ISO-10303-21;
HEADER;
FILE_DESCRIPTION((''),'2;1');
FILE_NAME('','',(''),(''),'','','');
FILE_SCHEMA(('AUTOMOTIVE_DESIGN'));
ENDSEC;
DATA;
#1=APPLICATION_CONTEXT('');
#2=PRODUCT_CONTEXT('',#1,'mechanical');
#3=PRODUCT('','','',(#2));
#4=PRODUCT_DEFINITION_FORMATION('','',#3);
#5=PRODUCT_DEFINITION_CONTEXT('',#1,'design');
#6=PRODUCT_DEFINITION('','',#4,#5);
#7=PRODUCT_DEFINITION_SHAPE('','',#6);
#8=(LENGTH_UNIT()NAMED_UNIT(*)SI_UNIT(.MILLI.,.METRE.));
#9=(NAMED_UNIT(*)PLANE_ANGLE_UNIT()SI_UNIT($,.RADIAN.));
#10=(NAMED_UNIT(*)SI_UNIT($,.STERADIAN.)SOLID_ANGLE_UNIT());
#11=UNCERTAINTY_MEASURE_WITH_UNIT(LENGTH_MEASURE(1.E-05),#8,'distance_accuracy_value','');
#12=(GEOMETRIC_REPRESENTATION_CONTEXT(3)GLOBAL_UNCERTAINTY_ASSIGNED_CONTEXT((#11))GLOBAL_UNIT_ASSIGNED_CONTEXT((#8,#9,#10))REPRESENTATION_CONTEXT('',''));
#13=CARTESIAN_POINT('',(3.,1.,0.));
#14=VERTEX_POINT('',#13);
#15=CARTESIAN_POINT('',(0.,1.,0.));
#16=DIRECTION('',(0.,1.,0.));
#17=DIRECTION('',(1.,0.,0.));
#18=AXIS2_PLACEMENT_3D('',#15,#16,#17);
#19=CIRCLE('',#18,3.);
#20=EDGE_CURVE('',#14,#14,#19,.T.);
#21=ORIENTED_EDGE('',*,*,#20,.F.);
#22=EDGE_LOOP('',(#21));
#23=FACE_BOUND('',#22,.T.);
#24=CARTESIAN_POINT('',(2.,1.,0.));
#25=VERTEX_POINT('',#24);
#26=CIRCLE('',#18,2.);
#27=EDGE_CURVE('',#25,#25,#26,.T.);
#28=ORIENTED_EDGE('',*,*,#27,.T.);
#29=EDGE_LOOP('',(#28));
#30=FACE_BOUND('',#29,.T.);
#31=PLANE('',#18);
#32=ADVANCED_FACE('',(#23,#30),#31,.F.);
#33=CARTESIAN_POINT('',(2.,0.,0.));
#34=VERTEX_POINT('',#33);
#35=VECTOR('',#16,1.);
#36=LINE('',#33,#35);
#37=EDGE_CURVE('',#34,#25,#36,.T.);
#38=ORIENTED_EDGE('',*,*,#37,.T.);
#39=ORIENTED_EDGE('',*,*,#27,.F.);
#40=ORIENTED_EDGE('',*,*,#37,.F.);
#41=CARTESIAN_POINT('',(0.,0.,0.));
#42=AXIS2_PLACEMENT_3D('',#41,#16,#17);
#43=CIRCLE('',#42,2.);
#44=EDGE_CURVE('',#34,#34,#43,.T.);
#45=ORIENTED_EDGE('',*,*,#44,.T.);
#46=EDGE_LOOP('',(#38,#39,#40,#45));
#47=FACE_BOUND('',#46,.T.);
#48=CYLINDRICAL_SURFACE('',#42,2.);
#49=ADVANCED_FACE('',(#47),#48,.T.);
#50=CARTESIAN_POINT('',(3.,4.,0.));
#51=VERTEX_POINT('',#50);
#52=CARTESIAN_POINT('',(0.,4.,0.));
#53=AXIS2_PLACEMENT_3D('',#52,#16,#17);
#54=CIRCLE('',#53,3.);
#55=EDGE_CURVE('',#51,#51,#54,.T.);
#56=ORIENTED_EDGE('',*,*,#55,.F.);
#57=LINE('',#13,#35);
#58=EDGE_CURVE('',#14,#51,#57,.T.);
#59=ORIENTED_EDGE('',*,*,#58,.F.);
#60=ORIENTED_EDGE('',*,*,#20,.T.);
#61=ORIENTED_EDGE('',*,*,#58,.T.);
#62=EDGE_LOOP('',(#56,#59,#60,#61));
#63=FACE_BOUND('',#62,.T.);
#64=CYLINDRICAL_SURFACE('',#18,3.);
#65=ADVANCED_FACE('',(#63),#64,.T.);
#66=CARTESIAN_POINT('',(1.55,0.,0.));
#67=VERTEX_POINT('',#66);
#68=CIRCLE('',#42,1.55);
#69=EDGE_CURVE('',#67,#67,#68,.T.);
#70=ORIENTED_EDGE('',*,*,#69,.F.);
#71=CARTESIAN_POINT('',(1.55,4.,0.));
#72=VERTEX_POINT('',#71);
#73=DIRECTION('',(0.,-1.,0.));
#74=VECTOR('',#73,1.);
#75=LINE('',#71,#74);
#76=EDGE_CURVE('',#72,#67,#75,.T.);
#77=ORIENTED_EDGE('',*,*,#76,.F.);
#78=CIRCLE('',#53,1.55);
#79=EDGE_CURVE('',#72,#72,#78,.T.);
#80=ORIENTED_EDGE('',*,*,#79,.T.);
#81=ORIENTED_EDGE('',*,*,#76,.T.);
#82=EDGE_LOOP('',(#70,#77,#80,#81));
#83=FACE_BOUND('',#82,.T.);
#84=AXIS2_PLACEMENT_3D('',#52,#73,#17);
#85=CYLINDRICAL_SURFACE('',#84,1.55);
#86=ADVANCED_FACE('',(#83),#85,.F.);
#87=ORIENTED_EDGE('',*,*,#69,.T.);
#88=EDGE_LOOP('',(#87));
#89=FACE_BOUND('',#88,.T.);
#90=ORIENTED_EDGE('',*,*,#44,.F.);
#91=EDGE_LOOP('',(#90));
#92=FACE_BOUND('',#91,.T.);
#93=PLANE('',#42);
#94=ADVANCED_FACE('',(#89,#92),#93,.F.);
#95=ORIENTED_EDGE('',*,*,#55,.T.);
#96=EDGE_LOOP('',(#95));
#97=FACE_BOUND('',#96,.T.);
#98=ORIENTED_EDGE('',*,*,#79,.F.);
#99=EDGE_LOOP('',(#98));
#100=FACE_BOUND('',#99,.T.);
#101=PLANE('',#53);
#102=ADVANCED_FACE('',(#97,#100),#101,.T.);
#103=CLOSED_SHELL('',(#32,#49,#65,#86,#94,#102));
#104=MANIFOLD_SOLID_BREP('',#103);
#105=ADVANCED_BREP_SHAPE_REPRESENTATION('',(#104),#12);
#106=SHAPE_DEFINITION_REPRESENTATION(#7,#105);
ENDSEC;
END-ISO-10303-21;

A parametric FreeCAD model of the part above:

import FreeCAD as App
import Part
import Sketcher
from FreeCAD import Vector

doc = App.newDocument("Part")
body = doc.addObject("PartDesign::Body", "Body")

# Sketch on XY plane
sketch1 = doc.addObject("Sketcher::SketchObject", "Sketch")
body.addObject(sketch1)
sketch1.AttachmentSupport = (doc.XY_Plane, [""])
sketch1.MapMode = "FlatFace"
sketch1.addGeometry(Part.LineSegment(Vector(1.55, 0, 0), Vector(2, 0, 0)), False)
sketch1.addGeometry(Part.LineSegment(Vector(2, 0, 0), Vector(2, 1, 0)), False)
sketch1.addGeometry(Part.LineSegment(Vector(2, 1, 0), Vector(3, 1, 0)), False)
sketch1.addGeometry(Part.LineSegment(Vector(3, 1, 0), Vector(3, 4, 0)), False)
sketch1.addGeometry(Part.LineSegment(Vector(3, 4, 0), Vector(1.55, 4, 0)), False)
sketch1.addGeometry(Part.LineSegment(Vector(1.55, 4, 0), Vector(1.55, 0, 0)), False)
sketch1.addConstraint(Sketcher.Constraint("Coincident", 0, 2, 1, 1))
sketch1.addConstraint(Sketcher.Constraint("Coincident", 1, 2, 2, 1))
sketch1.addConstraint(Sketcher.Constraint("Coincident", 2, 2, 3, 1))
sketch1.addConstraint(Sketcher.Constraint("Coincident", 3, 2, 4, 1))
sketch1.addConstraint(Sketcher.Constraint("Coincident", 4, 2, 5, 1))
sketch1.addConstraint(Sketcher.Constraint("Coincident", 5, 2, 0, 1))
sketch1.addConstraint(Sketcher.Constraint("Horizontal", 0))
sketch1.addConstraint(Sketcher.Constraint("Vertical", 1))
sketch1.addConstraint(Sketcher.Constraint("Horizontal", 2))
sketch1.addConstraint(Sketcher.Constraint("Vertical", 3))
sketch1.addConstraint(Sketcher.Constraint("Horizontal", 4))
sketch1.addConstraint(Sketcher.Constraint("Vertical", 5))
sketch1.addConstraint(Sketcher.Constraint("PointOnObject", 0, 2, -1))
sketch1.addConstraint(Sketcher.Constraint("Equal", 2, 1))
sketch1.addConstraint(Sketcher.Constraint("DistanceX", 2, 1, 2, 2, 1.0))
sketch1.addConstraint(Sketcher.Constraint("DistanceY", 3, 1, 3, 2, 3.0))
sketch1.addConstraint(Sketcher.Constraint("DistanceX", -1, 1, 2, 2, 3.0))
sketch1.addConstraint(Sketcher.Constraint("DistanceX", 0, 1, 0, 2, 0.45))
revolution = doc.addObject("PartDesign::Revolution", "Revolution")
body.addObject(revolution)
revolution.Profile = sketch1
revolution.ReferenceAxis = (sketch1, ["V_Axis"])
revolution.Angle = 360

doc.recompute()
